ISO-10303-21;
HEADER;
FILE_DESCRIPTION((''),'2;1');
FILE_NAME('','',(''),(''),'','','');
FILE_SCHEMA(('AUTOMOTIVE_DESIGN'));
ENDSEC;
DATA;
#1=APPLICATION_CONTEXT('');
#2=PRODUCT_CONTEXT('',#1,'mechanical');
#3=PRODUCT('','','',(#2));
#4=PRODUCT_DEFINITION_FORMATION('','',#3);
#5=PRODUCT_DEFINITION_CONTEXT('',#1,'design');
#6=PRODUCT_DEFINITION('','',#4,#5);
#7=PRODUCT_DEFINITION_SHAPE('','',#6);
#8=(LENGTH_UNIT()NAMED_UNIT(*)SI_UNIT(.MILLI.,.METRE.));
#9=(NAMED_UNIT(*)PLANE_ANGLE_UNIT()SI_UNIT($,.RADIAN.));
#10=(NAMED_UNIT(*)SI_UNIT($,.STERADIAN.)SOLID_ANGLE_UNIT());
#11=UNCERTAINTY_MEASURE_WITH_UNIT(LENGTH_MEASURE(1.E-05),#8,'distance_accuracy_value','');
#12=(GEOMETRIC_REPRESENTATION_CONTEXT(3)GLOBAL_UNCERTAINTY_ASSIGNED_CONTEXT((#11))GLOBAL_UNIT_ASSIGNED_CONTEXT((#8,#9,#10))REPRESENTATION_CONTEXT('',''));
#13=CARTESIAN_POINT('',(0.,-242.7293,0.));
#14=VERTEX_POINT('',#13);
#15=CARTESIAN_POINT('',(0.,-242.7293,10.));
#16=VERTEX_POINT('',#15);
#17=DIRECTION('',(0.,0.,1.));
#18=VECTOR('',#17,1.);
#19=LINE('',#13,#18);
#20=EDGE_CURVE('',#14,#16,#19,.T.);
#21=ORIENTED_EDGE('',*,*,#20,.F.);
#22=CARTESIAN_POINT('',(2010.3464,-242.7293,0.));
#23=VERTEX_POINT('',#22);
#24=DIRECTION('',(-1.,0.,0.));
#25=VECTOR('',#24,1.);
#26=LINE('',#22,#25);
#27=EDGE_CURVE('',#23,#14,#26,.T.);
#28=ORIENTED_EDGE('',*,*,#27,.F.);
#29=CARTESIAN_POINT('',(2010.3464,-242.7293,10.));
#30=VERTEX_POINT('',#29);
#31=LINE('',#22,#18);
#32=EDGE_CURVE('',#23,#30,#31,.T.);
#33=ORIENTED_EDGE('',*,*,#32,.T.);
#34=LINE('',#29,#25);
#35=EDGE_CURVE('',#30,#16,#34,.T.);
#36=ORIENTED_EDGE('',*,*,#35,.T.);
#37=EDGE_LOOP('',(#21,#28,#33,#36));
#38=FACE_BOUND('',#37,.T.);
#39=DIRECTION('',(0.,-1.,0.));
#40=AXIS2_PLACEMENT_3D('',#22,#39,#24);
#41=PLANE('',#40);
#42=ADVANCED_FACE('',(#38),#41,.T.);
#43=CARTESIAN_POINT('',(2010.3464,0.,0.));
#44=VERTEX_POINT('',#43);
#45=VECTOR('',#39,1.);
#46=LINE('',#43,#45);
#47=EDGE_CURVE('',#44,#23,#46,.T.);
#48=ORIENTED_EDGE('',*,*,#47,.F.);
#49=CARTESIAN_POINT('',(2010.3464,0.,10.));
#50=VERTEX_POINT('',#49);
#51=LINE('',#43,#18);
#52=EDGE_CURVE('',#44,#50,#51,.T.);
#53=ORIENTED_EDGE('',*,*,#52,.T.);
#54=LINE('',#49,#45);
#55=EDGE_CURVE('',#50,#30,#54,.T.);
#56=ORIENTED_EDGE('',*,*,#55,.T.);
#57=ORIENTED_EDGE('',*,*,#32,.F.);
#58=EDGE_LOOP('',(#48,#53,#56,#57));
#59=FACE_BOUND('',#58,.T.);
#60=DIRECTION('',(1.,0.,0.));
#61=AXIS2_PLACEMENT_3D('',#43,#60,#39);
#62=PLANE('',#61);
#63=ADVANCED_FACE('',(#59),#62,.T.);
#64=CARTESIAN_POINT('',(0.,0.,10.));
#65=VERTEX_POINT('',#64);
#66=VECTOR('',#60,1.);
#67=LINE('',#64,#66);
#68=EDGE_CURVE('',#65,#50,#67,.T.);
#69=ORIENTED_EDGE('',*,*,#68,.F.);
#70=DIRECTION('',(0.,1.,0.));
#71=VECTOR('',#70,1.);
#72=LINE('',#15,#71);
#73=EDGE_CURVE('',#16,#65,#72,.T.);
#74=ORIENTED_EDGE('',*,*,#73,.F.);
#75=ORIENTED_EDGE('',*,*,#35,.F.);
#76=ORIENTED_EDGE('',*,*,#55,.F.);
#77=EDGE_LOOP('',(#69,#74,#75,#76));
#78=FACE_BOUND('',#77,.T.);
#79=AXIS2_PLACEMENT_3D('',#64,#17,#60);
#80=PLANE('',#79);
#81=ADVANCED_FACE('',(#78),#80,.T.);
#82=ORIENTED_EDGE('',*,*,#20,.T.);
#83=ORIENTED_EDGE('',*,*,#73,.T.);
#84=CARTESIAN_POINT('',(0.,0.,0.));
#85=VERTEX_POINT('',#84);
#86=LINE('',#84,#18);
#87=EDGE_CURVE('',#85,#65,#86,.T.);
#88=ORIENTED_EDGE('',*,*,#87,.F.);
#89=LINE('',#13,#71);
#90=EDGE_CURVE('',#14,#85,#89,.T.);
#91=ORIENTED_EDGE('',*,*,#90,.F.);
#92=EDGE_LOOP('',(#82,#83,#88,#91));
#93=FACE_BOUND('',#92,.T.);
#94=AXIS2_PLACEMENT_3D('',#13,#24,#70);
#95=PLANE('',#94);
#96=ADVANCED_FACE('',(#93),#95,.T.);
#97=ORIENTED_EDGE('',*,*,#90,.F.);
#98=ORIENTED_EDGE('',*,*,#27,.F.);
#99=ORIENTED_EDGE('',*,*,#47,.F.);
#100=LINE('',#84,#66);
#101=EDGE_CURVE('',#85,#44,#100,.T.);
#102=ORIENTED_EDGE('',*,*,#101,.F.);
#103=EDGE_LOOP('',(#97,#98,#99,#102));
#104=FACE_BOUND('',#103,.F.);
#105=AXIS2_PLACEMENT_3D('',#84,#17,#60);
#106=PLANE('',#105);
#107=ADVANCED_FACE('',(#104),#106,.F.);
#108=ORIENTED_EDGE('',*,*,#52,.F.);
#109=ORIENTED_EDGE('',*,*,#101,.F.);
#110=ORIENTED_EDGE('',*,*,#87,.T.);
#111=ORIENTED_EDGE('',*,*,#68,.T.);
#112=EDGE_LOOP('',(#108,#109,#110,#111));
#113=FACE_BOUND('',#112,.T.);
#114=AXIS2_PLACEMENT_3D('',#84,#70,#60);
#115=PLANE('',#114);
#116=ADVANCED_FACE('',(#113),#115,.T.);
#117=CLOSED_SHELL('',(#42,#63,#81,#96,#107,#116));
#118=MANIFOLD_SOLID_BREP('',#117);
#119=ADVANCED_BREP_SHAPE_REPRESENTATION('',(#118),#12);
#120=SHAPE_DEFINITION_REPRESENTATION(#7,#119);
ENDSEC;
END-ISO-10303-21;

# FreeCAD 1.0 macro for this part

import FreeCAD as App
import Part
import Sketcher
from FreeCAD import Vector


def add_polygon(sketch, points):
    """Adds a closed chain of lines whose ends are joined by coincident constraints."""
    first, n = sketch.GeometryCount, len(points)
    for a, b in zip(points, points[1:] + points[:1]):
        sketch.addGeometry(Part.LineSegment(App.Vector(*a, 0), App.Vector(*b, 0)), False)
    for i in range(n):
        sketch.addConstraint(Sketcher.Constraint("Coincident", first + i, 2, first + (i + 1) % n, 1))

doc = App.newDocument("Part")
body = doc.addObject("PartDesign::Body", "Body")

sketch1 = body.newObject("Sketcher::SketchObject", "Sketch")
sketch1.AttachmentSupport = (doc.getObject("XY_Plane"), [""])
sketch1.MapMode = "FlatFace"
add_polygon(sketch1, [(2010, 0), (0, 0), (0, -243), (2010, -243)])
sketch1.addConstraint([
    Sketcher.Constraint("Horizontal", 0),
    Sketcher.Constraint("Vertical", 1),
    Sketcher.Constraint("Horizontal", 2),
    Sketcher.Constraint("Vertical", 3),
    Sketcher.Constraint("Coincident", 0, 2, -1, 1),
    Sketcher.Constraint("DistanceX", 0, 2, 0, 1, 2010.3464),
    Sketcher.Constraint("DistanceY", 1, 2, 1, 1, 242.7293),
])
pad1 = body.newObject("PartDesign::Pad", "Pad")
pad1.Profile = sketch1
pad1.Length = 10

doc.recompute()
